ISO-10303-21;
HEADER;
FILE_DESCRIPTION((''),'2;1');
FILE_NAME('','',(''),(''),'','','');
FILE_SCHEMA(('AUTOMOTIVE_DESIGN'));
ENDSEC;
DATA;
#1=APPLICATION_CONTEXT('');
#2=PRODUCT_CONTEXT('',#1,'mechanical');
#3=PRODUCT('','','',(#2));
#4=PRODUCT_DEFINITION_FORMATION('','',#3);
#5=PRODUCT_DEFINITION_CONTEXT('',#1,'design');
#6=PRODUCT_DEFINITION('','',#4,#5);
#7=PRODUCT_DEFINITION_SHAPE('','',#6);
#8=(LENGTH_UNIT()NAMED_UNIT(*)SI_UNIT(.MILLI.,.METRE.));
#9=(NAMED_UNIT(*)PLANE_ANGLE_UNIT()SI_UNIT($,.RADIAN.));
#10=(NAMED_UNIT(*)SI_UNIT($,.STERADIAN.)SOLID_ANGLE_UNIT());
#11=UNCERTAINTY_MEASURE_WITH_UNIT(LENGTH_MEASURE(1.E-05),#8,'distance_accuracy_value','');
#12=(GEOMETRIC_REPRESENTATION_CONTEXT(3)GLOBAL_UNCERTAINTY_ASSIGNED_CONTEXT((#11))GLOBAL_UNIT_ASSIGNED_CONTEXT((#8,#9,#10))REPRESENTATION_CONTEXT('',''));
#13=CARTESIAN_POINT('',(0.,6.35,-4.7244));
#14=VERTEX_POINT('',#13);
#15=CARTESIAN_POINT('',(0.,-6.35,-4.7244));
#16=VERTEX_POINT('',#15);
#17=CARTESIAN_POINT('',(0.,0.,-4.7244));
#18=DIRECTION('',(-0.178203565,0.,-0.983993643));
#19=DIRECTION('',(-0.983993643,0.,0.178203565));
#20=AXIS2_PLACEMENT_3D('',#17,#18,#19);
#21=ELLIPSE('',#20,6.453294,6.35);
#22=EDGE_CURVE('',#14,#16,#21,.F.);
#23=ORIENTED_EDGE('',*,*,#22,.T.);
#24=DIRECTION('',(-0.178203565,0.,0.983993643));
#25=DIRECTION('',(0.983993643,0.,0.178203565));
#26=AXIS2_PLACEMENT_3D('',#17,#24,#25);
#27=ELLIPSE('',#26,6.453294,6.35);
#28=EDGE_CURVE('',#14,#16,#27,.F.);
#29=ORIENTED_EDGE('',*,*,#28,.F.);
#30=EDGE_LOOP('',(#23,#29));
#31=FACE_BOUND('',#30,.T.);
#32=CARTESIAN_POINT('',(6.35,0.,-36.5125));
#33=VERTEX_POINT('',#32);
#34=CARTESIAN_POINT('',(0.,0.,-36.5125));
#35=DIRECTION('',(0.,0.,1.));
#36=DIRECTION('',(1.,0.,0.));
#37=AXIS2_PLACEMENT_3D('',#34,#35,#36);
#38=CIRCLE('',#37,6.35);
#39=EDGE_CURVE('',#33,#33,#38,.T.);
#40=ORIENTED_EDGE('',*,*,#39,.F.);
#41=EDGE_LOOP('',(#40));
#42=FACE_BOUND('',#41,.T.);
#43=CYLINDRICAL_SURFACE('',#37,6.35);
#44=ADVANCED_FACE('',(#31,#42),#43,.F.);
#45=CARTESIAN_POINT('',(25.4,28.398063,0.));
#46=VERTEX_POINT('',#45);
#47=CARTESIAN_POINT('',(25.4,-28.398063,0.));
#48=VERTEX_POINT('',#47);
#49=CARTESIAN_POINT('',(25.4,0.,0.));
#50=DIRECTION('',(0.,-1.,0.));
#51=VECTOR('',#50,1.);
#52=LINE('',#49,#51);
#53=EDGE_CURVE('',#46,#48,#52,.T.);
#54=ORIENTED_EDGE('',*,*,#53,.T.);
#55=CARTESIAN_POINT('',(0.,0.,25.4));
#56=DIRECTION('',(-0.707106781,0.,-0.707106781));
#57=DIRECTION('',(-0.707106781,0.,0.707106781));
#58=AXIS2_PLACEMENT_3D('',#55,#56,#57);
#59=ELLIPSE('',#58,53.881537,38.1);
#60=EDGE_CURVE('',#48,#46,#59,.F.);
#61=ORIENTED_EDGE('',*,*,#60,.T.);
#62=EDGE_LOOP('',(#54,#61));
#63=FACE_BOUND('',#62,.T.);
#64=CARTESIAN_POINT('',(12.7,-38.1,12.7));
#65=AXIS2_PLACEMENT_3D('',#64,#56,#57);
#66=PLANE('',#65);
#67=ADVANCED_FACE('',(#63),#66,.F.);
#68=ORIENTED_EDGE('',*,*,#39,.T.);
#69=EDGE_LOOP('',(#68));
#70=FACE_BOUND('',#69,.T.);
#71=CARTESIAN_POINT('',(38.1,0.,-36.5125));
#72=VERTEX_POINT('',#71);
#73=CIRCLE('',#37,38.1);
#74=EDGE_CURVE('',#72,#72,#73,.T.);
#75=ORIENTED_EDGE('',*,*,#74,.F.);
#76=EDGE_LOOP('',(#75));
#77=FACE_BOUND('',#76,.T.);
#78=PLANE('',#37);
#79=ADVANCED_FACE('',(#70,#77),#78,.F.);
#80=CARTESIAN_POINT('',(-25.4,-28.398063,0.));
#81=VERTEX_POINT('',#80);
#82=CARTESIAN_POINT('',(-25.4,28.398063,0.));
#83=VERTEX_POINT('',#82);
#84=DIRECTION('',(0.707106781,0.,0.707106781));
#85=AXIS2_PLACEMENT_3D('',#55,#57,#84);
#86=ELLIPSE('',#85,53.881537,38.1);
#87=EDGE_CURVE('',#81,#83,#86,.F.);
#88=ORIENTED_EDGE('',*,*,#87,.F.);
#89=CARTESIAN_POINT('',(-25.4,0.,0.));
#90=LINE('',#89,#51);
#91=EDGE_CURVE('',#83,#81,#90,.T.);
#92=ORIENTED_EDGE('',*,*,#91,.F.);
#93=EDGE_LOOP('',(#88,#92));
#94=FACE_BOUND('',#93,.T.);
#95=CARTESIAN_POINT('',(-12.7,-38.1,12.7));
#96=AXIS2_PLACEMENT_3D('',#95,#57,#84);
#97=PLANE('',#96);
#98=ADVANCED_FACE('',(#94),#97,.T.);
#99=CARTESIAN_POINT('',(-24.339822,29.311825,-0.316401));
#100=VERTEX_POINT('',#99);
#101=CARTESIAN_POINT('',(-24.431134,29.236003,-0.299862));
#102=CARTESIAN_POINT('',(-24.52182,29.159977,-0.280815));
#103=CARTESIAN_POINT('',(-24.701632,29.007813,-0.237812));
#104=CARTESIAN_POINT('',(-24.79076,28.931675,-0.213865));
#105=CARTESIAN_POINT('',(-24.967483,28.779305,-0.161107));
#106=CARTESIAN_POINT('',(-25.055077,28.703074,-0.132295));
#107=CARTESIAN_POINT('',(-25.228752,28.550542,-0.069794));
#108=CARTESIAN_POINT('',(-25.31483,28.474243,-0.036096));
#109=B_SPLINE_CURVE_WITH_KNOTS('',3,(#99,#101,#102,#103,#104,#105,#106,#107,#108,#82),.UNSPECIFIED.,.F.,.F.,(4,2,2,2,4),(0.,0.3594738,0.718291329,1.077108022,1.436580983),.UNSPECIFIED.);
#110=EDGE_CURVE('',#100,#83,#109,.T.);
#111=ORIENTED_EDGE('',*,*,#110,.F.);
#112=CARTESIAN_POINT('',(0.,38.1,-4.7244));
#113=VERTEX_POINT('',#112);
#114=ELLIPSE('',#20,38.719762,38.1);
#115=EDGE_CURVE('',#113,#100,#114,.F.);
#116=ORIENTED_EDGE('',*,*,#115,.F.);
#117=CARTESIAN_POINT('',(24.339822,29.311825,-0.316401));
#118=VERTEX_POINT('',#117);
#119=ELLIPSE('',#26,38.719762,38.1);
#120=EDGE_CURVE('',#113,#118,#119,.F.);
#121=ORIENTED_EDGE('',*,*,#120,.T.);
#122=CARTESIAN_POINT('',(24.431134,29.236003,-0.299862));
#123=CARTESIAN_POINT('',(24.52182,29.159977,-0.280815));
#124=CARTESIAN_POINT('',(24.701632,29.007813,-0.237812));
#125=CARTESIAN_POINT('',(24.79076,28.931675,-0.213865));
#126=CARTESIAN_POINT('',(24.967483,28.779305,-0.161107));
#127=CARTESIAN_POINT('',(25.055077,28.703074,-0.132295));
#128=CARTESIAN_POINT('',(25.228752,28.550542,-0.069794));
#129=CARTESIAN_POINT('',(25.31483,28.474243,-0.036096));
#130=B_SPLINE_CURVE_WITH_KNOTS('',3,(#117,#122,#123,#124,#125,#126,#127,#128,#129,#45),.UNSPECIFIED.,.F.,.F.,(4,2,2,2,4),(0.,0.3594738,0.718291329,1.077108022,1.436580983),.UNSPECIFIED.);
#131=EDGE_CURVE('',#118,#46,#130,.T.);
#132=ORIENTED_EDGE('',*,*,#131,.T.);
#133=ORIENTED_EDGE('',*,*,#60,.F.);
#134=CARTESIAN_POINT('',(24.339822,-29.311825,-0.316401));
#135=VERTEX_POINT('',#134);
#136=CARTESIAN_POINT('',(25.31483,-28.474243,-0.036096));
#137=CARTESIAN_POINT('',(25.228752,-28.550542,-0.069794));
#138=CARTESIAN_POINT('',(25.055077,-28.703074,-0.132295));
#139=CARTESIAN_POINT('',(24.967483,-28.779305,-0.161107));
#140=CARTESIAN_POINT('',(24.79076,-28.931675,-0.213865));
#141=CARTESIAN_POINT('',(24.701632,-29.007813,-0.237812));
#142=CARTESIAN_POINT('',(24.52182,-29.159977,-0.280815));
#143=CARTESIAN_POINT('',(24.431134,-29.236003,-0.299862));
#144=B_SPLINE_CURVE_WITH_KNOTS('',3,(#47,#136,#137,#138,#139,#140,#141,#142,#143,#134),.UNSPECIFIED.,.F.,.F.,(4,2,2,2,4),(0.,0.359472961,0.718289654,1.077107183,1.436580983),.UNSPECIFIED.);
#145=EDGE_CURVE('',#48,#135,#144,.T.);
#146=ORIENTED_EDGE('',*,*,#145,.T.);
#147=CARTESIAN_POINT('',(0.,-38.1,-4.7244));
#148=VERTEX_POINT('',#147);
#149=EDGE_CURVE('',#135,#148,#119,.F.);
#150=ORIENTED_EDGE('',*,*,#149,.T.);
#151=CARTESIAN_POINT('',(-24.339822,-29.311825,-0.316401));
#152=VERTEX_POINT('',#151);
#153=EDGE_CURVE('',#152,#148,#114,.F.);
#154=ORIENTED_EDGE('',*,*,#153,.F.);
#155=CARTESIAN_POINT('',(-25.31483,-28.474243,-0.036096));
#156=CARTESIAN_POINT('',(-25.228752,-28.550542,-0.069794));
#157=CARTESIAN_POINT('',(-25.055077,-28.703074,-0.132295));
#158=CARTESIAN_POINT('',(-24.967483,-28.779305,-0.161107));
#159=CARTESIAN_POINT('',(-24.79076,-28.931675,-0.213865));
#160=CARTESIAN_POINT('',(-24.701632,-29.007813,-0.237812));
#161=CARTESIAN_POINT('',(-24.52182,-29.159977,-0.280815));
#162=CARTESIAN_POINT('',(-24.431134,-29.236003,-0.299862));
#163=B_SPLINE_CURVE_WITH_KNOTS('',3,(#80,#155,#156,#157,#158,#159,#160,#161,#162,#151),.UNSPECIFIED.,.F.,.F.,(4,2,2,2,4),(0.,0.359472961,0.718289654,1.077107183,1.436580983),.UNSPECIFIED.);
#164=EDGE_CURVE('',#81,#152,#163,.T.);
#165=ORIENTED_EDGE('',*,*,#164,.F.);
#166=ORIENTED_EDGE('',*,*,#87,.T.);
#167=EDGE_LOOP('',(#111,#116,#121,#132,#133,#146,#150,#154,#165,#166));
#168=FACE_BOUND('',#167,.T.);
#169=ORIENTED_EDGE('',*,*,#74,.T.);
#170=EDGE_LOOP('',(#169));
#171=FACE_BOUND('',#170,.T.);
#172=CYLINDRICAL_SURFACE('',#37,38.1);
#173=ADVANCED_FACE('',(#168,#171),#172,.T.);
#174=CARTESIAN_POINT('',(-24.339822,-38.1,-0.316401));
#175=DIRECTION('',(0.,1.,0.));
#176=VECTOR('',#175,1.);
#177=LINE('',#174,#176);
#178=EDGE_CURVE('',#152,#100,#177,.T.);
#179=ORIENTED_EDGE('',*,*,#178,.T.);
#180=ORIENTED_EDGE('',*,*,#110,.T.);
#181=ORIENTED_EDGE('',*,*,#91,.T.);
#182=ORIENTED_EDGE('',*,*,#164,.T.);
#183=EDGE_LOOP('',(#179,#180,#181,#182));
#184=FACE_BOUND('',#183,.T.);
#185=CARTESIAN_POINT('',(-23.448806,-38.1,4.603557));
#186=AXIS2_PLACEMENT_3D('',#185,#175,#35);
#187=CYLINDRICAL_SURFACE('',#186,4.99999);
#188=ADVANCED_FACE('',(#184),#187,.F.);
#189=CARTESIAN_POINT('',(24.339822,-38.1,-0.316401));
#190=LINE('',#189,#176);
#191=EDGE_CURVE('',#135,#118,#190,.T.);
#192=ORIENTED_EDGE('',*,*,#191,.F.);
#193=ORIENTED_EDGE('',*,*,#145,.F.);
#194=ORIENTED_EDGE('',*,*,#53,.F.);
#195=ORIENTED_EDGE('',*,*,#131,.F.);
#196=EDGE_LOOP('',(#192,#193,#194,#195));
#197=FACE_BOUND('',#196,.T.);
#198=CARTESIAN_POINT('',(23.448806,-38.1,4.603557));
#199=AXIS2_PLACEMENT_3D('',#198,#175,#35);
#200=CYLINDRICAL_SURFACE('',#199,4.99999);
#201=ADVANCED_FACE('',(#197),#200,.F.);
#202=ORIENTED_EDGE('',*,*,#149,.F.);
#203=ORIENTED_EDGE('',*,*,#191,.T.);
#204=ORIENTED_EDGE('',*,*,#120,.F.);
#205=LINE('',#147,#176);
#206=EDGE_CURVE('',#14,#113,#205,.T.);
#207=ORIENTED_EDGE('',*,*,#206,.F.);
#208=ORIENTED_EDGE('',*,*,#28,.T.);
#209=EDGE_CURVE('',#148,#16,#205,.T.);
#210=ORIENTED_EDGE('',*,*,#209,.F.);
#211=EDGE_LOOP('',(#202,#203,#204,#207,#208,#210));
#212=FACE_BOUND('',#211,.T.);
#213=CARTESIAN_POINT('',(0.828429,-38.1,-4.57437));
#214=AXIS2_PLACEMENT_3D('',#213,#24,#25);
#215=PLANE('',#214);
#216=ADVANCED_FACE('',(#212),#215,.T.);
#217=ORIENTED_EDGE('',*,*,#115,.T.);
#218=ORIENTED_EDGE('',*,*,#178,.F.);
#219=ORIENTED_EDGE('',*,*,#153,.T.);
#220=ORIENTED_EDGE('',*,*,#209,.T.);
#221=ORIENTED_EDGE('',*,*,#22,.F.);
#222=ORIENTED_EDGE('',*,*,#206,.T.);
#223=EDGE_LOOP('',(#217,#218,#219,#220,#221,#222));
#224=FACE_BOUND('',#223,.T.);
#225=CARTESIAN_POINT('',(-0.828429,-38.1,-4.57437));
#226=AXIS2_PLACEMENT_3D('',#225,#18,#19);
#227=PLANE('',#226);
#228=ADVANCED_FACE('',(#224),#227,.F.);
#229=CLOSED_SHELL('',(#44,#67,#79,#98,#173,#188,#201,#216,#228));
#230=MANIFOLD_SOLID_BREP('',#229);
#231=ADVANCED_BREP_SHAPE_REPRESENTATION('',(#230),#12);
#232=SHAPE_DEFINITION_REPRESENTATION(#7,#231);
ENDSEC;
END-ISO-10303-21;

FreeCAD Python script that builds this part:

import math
import FreeCAD as App
import Part
import Sketcher
from FreeCAD import Vector
Q = App.Units.Quantity


def add_polygon(sketch, points):
    """Adds a closed chain of lines whose ends are joined by coincident constraints."""
    first, n = sketch.GeometryCount, len(points)
    for a, b in zip(points, points[1:] + points[:1]):
        sketch.addGeometry(Part.LineSegment(App.Vector(*a, 0), App.Vector(*b, 0)), False)
    for i in range(n):
        sketch.addConstraint(Sketcher.Constraint("Coincident", first + i, 2, first + (i + 1) % n, 1))

doc = App.newDocument("Part")
body = doc.addObject("PartDesign::Body", "Body")

# Sketch on XY plane
sketch1 = body.newObject("Sketcher::SketchObject", "Sketch")
sketch1.AttachmentSupport = (doc.getObject("XY_Plane"), [""])
sketch1.MapMode = "FlatFace"
sketch1.addGeometry(Part.Circle(Vector(0, 0, 0), Vector(0, 0, 1), 38), False)
sketch1.addGeometry(Part.Circle(Vector(0, 0, 0), Vector(0, 0, 1), 6), False)
sketch1.addConstraint(Sketcher.Constraint("Coincident", 0, 3, -1, 1))
sketch1.addConstraint(Sketcher.Constraint("Coincident", 1, 3, -1, 1))
sketch1.addConstraint(Sketcher.Constraint("Diameter", 0, Q("3 in")))
sketch1.addConstraint(Sketcher.Constraint("Diameter", 1, Q("0.5 in")))
pad1 = body.newObject("PartDesign::Pad", "Pad")
pad1.Profile = sketch1
pad1.Length = Q("1.4375 in")
pad1.Reversed = True

# Sketch on XZ plane
sketch2 = body.newObject("Sketcher::SketchObject", "Sketch001")
sketch2.AttachmentSupport = (doc.getObject("XZ_Plane"), [""])
sketch2.MapMode = "FlatFace"
add_polygon(sketch2, [(-38.1, -12.7), (-38.1, 0), (-25.4, 0)])  # lines 0-2
sketch2.addGeometry(Part.LineSegment(Vector(0, -4.7, 0), Vector(-24.3, -0.3, 0)), False)  # 3
sketch2.addGeometry(Part.ArcOfCircle(Part.Circle(Vector(-23.4, 4.6, 0), Vector(0, 0, 1), 5), math.radians(-112.97), math.radians(-100.27)), False)  # 4
sketch2.addGeometry(Part.LineSegment(Vector(-25.4, 0, 0), Vector(25.4, 0, 0)), False)  # 5
sketch2.addGeometry(Part.ArcOfCircle(Part.Circle(Vector(23.4, 4.6, 0), Vector(0, 0, 1), 5), math.radians(-79.73), math.radians(-67.03)), False)  # 6
sketch2.addGeometry(Part.LineSegment(Vector(24.3, -0.3, 0), Vector(0, -4.7, 0)), False)  # 7
add_polygon(sketch2, [(38.1, 0), (38.1, -12.7), (25.4, 0)])  # lines 8-10
sketch2.addConstraint(Sketcher.Constraint("Tangent", 3, 2, 4, 2))
sketch2.addConstraint(Sketcher.Constraint("Coincident", 4, 1, 5, 1))
sketch2.addConstraint(Sketcher.Constraint("Coincident", 5, 2, 6, 2))
sketch2.addConstraint(Sketcher.Constraint("Tangent", 6, 1, 7, 1))
sketch2.addConstraint(Sketcher.Constraint("Coincident", 7, 2, 3, 1))
sketch2.addConstraint(Sketcher.Constraint("Vertical", 0))
sketch2.addConstraint(Sketcher.Constraint("Horizontal", 1))
sketch2.addConstraint(Sketcher.Constraint("Horizontal", 5))
sketch2.addConstraint(Sketcher.Constraint("Vertical", 8))
sketch2.addConstraint(Sketcher.Constraint("Horizontal", 10))
sketch2.addConstraint(Sketcher.Constraint("Coincident", 4, 1, 1, 2))
sketch2.addConstraint(Sketcher.Constraint("Coincident", 9, 2, 5, 2))
sketch2.addConstraint(Sketcher.Constraint("Equal", 4, 6))
sketch2.addConstraint(Sketcher.Constraint("Symmetric", 1, 2, 5, 2, -1, 1))
sketch2.addConstraint(Sketcher.Constraint("Symmetric", 3, 2, 6, 1, -2))
sketch2.addConstraint(Sketcher.Constraint("Symmetric", 2, 2, 8, 2, -2))
sketch2.addConstraint(Sketcher.Constraint("Perpendicular", 2, 9))
sketch2.addConstraint(Sketcher.Constraint("DistanceX", 5, 1, 5, 2, Q("2 in")))
sketch2.addConstraint(Sketcher.Constraint("DistanceX", 1, 1, 1, 2, Q("0.5 in")))
sketch2.addConstraint(Sketcher.Constraint("DistanceY", 7, 2, -1, 1, Q("0.186 in")))
sketch2.addConstraint(Sketcher.Constraint("Radius", 4, 4.99999))
sketch2.addConstraint(Sketcher.Constraint("DistanceY", 3, 2, -1, 1, 0.316401))
pocket1 = body.newObject("PartDesign::Pocket", "Pocket")
pocket1.Profile = sketch2
pocket1.Type = "ThroughAll"
pocket1.Midplane = True

doc.recompute()
